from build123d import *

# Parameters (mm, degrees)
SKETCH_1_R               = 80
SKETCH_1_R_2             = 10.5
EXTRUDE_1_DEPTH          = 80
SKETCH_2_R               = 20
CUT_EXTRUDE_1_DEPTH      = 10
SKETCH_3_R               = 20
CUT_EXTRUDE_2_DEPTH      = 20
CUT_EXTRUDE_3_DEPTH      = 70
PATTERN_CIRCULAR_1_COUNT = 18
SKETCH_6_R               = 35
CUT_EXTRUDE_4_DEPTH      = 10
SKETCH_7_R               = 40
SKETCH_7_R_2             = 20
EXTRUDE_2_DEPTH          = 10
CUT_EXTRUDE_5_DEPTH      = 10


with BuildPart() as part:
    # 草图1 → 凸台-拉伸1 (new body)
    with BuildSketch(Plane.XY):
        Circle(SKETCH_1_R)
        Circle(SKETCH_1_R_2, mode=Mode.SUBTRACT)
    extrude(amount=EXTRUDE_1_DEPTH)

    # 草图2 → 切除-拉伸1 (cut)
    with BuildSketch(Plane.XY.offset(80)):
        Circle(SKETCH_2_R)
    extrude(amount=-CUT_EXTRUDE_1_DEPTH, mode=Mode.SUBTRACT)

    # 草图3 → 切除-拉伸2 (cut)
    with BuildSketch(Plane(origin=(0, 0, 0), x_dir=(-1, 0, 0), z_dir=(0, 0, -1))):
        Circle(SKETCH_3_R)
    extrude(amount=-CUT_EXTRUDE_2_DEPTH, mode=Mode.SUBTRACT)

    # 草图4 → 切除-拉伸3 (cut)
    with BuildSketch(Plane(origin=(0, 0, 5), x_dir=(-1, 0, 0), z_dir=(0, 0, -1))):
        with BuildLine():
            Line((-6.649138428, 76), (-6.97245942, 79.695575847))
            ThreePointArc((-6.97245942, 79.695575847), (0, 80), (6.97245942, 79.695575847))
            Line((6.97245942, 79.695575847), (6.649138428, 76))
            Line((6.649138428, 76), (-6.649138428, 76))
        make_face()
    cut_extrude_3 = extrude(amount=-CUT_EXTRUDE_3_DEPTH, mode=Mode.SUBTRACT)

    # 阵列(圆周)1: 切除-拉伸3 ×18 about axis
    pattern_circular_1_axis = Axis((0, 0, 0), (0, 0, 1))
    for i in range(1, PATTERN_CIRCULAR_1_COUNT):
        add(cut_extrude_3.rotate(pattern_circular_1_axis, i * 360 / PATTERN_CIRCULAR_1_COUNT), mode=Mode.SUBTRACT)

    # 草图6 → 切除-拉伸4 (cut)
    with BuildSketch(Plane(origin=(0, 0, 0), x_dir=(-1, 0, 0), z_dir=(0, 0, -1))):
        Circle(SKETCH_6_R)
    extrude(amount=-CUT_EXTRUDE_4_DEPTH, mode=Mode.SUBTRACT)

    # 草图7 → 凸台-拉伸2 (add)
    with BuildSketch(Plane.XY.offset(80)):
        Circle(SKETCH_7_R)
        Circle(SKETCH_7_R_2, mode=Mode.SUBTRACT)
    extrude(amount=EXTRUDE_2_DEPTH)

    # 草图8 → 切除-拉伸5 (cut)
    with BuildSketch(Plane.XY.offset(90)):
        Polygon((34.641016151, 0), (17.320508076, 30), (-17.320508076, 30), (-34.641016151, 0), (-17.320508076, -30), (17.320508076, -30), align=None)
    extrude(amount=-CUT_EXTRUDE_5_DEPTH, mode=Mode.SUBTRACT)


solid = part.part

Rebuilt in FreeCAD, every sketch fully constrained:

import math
import FreeCAD as App
import Part
import Sketcher

V = App.Vector
Q = App.Units.Quantity

doc = App.newDocument("Part")
params = doc.addObject("Spreadsheet::Sheet", "Params")
for row, (alias, value) in enumerate([
    ("sketch1_diameter", "160 mm"),
    ("sketch1_diameter2", "21 mm"),
    ("pad1_length", "80 mm"),
    ("sketch2_diameter", "40 mm"),
    ("pocket1_length", "10 mm"),
    ("sketch3_diameter", "40 mm"),
    ("pocket2_length", "20 mm"),
    ("sketch4_radius", "80 mm"),
    ("pocket3_length", "70 mm"),
    ("sketch5_diameter", "70 mm"),
    ("pocket4_length", "10 mm"),
    ("sketch6_diameter", "80 mm"),
    ("sketch6_diameter2", "40 mm"),
    ("pad2_length", "10 mm"),
    ("pocket5_length", "10 mm"),
], start=1):
    params.set(f"A{row}", alias)
    params.set(f"B{row}", "=" + value)
    params.setAlias(f"B{row}", alias)

body = doc.addObject("PartDesign::Body", "Body")

# Sketch on XY plane
sketch1 = body.newObject("Sketcher::SketchObject", "Sketch")
sketch1.AttachmentSupport = (doc.getObject("XY_Plane"), [""])
sketch1.MapMode = "FlatFace"
sketch1.addGeometry([
    Part.Circle(V(0, 0, 0), V(0, 0, 1), 80),
    Part.Circle(V(0, 0, 0), V(0, 0, 1), 10),
], False)
sketch1.addConstraint([
    Sketcher.Constraint("Coincident", 0, 3, -1, 1),
    Sketcher.Constraint("Coincident", 1, 3, -1, 1),
    Sketcher.Constraint("Diameter", 0, Q("160 mm")),
    Sketcher.Constraint("Diameter", 1, Q("21 mm")),
])
sketch1.setExpression("Constraints[2]", "Params.sketch1_diameter")
sketch1.setExpression("Constraints[3]", "Params.sketch1_diameter2")
pad1 = body.newObject("PartDesign::Pad", "Pad")
pad1.Profile = sketch1
pad1.setExpression("Length", "Params.pad1_length")

# Sketch on XY plane
sketch2 = body.newObject("Sketcher::SketchObject", "Sketch001")
sketch2.AttachmentSupport = (doc.getObject("XY_Plane"), [""])
sketch2.MapMode = "FlatFace"
sketch2.AttachmentOffset = App.Placement(V(0, 0, 80), App.Rotation())
sketch2.addGeometry(Part.Circle(V(0, 0, 0), V(0, 0, 1), 20), False)
sketch2.addConstraint([
    Sketcher.Constraint("Coincident", 0, 3, -1, 1),
    Sketcher.Constraint("Diameter", 0, Q("40 mm")),
])
sketch2.setExpression("Constraints[1]", "Params.sketch2_diameter")
pocket1 = body.newObject("PartDesign::Pocket", "Pocket")
pocket1.Profile = sketch2
pocket1.setExpression("Length", "Params.pocket1_length")

# Sketch on XY plane
sketch3 = body.newObject("Sketcher::SketchObject", "Sketch002")
sketch3.AttachmentSupport = (doc.getObject("XY_Plane"), [""])
sketch3.MapMode = "FlatFace"
sketch3.addGeometry(Part.Circle(V(0, 0, 0), V(0, 0, 1), 20), False)
sketch3.addConstraint([
    Sketcher.Constraint("Coincident", 0, 3, -1, 1),
    Sketcher.Constraint("Diameter", 0, Q("40 mm")),
])
sketch3.setExpression("Constraints[1]", "Params.sketch3_diameter")
pocket2 = body.newObject("PartDesign::Pocket", "Pocket001")
pocket2.Profile = sketch3
pocket2.setExpression("Length", "Params.pocket2_length")
pocket2.Reversed = True

# Sketch on XY plane
sketch4 = body.newObject("Sketcher::SketchObject", "Sketch003")
sketch4.AttachmentSupport = (doc.getObject("XY_Plane"), [""])
sketch4.MapMode = "FlatFace"
sketch4.AttachmentOffset = App.Placement(V(0, 0, 5), App.Rotation())
sketch4.addGeometry([
    Part.LineSegment(V(7, 79.7, 0), V(6.6, 76, 0)),
    Part.LineSegment(V(6.6, 76, 0), V(-6.6, 76, 0)),
    Part.LineSegment(V(-6.6, 76, 0), V(-7, 79.7, 0)),
    Part.ArcOfCircle(Part.Circle(V(0, 0, 0), V(0, 0, 1), 80), math.radians(85), math.radians(95)),
], False)
sketch4.addConstraint([
    Sketcher.Constraint("Coincident", 0, 2, 1, 1),
    Sketcher.Constraint("Coincident", 1, 2, 2, 1),
    Sketcher.Constraint("Coincident", 2, 2, 3, 2),
    Sketcher.Constraint("Coincident", 3, 1, 0, 1),
    Sketcher.Constraint("Horizontal", 1),
    Sketcher.Constraint("Coincident", 3, 3, -1, 1),
    Sketcher.Constraint("Horizontal", 2, 2, 3, 1),
    Sketcher.Constraint("Equal", 0, 2),
    Sketcher.Constraint("Radius", 3, Q("80 mm")),
    Sketcher.Constraint("Angle", 0, Q("-95 deg")),
    Sketcher.Constraint("DistanceY", -1, 1, 0, 2, Q("76 mm")),
    Sketcher.Constraint("DistanceX", 1, 2, 1, 1, Q("13.298277 mm")),
])
sketch4.setExpression("Constraints[8]", "Params.sketch4_radius")
pocket3 = body.newObject("PartDesign::Pocket", "Pocket002")
pocket3.Profile = sketch4
pocket3.setExpression("Length", "Params.pocket3_length")
pocket3.Reversed = True
doc.recompute()

polarpattern = body.newObject("PartDesign::PolarPattern", "PolarPattern")
polarpattern.Originals = [pocket3]
polarpattern.Axis = (doc.getObject("Z_Axis"), [""])
polarpattern.Angle = 360
polarpattern.Occurrences = 18
body.Tip = polarpattern

# Sketch on XY plane
sketch5 = body.newObject("Sketcher::SketchObject", "Sketch004")
sketch5.AttachmentSupport = (doc.getObject("XY_Plane"), [""])
sketch5.MapMode = "FlatFace"
sketch5.addGeometry(Part.Circle(V(0, 0, 0), V(0, 0, 1), 35), False)
sketch5.addConstraint([
    Sketcher.Constraint("Coincident", 0, 3, -1, 1),
    Sketcher.Constraint("Diameter", 0, Q("70 mm")),
])
sketch5.setExpression("Constraints[1]", "Params.sketch5_diameter")
pocket4 = body.newObject("PartDesign::Pocket", "Pocket003")
pocket4.Profile = sketch5
pocket4.setExpression("Length", "Params.pocket4_length")
pocket4.Reversed = True

# Sketch on XY plane
sketch6 = body.newObject("Sketcher::SketchObject", "Sketch005")
sketch6.AttachmentSupport = (doc.getObject("XY_Plane"), [""])
sketch6.MapMode = "FlatFace"
sketch6.AttachmentOffset = App.Placement(V(0, 0, 80), App.Rotation())
sketch6.addGeometry([
    Part.Circle(V(0, 0, 0), V(0, 0, 1), 40),
    Part.Circle(V(0, 0, 0), V(0, 0, 1), 20),
], False)
sketch6.addConstraint([
    Sketcher.Constraint("Coincident", 0, 3, -1, 1),
    Sketcher.Constraint("Coincident", 1, 3, -1, 1),
    Sketcher.Constraint("Diameter", 0, Q("80 mm")),
    Sketcher.Constraint("Diameter", 1, Q("40 mm")),
])
sketch6.setExpression("Constraints[2]", "Params.sketch6_diameter")
sketch6.setExpression("Constraints[3]", "Params.sketch6_diameter2")
pad2 = body.newObject("PartDesign::Pad", "Pad001")
pad2.Profile = sketch6
pad2.setExpression("Length", "Params.pad2_length")

# Sketch on XY plane
sketch7 = body.newObject("Sketcher::SketchObject", "Sketch006")
sketch7.AttachmentSupport = (doc.getObject("XY_Plane"), [""])
sketch7.MapMode = "FlatFace"
sketch7.AttachmentOffset = App.Placement(V(0, 0, 90), App.Rotation())
sketch7.addGeometry([
    Part.LineSegment(V(35, 0, 0), V(17, 30, 0)),  # 0
    Part.LineSegment(V(17, 30, 0), V(-17, 30, 0)),  # 1
    Part.LineSegment(V(-17, 30, 0), V(-35, 0, 0)),  # 2
    Part.LineSegment(V(-35, 0, 0), V(-17, -30, 0)),  # 3
    Part.LineSegment(V(-17, -30, 0), V(17, -30, 0)),  # 4
    Part.LineSegment(V(17, -30, 0), V(35, 0, 0)),  # 5
], False)
sketch7.addConstraint([
    Sketcher.Constraint("Coincident", 0, 2, 1, 1),
    Sketcher.Constraint("Coincident", 1, 2, 2, 1),
    Sketcher.Constraint("Coincident", 2, 2, 3, 1),
    Sketcher.Constraint("Coincident", 3, 2, 4, 1),
    Sketcher.Constraint("Coincident", 4, 2, 5, 1),
    Sketcher.Constraint("Coincident", 5, 2, 0, 1),
    Sketcher.Constraint("Horizontal", 1),
    Sketcher.Constraint("Horizontal", 4),
    Sketcher.Constraint("Symmetric", 0, 2, 3, 2, -1, 1),
    Sketcher.Constraint("Symmetric", 2, 2, 5, 2, -1, 1),
    Sketcher.Constraint("PointOnObject", 2, 2, -1),
    Sketcher.Constraint("Parallel", 2, 5),
    Sketcher.Constraint("Vertical", 1, 2, 3, 2),
    Sketcher.Constraint("Angle", 0, Q("120 deg")),
    Sketcher.Constraint("DistanceY", -1, 1, 0, 2, Q("30 mm")),
    Sketcher.Constraint("DistanceX", 1, 2, 1, 1, Q("34.641016 mm")),
])
pocket5 = body.newObject("PartDesign::Pocket", "Pocket004")
pocket5.Profile = sketch7
pocket5.setExpression("Length", "Params.pocket5_length")

doc.recompute()
